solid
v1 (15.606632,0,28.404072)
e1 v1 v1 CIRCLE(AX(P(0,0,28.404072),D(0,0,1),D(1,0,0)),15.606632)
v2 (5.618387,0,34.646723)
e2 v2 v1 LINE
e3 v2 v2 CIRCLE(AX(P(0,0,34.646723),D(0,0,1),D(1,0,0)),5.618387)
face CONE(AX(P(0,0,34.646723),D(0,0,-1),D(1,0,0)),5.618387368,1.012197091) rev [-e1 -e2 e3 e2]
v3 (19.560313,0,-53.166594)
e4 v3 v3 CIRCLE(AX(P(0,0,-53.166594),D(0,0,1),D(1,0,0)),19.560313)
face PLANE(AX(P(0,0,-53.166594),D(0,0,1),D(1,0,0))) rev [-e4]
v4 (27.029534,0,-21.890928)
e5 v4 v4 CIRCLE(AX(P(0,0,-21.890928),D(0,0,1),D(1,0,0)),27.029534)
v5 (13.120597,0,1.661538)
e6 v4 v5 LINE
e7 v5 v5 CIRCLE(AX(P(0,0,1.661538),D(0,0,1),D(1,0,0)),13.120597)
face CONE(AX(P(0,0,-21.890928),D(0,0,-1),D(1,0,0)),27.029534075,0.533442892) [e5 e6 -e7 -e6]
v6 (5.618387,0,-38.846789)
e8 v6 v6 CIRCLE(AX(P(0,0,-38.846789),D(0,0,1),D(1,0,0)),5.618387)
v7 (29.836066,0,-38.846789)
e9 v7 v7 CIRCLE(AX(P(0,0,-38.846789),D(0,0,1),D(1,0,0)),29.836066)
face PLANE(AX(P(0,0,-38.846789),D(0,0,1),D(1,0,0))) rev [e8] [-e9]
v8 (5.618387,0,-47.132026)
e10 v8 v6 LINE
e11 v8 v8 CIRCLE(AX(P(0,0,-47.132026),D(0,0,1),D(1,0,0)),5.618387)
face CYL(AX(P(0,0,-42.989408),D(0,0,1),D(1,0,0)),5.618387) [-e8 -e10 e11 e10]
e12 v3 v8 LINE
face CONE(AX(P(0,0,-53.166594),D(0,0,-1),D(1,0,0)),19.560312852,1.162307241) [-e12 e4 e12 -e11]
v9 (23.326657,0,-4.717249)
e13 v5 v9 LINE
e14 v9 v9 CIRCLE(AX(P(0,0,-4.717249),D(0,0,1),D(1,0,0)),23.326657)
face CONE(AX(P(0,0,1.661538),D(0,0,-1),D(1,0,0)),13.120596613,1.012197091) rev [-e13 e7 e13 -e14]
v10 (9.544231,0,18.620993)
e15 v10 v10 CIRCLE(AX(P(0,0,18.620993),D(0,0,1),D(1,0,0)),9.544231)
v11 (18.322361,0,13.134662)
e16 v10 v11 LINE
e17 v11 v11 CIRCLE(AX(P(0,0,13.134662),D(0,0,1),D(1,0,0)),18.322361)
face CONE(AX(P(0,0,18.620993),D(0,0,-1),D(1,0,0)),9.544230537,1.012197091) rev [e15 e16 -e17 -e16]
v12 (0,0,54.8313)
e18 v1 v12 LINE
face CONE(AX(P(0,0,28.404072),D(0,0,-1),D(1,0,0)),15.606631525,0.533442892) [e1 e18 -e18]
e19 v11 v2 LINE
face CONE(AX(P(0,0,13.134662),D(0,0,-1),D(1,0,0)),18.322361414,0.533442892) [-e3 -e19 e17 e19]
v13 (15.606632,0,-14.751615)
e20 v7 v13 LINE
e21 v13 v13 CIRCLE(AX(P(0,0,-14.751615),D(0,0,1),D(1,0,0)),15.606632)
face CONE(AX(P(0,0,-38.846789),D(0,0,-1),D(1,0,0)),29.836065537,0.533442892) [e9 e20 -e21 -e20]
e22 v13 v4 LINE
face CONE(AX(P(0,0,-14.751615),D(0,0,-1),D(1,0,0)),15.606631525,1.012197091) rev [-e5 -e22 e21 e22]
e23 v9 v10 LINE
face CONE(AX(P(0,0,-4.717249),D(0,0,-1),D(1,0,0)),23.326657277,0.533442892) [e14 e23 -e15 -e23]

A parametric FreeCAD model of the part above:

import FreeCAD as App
import Part
import Sketcher

V = App.Vector
Q = App.Units.Quantity


def add_polygon(sketch, points):
    """Adds a closed chain of lines whose ends are joined by coincident constraints."""
    first, n = sketch.GeometryCount, len(points)
    for a, b in zip(points, points[1:] + points[:1]):
        sketch.addGeometry(Part.LineSegment(App.Vector(*a, 0), App.Vector(*b, 0)), False)
    for i in range(n):
        sketch.addConstraint(Sketcher.Constraint("Coincident", first + i, 2, first + (i + 1) % n, 1))

doc = App.newDocument("Part")
body = doc.addObject("PartDesign::Body", "Body")

# Sketch on XZ plane
sketch1 = body.newObject("Sketcher::SketchObject", "Sketch")
sketch1.AttachmentSupport = (doc.getObject("XZ_Plane"), [""])
sketch1.MapMode = "FlatFace"
add_polygon(sketch1, [(15.606632, 28.404072), (0, 54.8313), (0, -53.166594), (19.560313, -53.166594), (5.618387, -47.132026), (5.618387, -38.846789), (29.836066, -38.846789), (15.606632, -14.751615), (27.029534, -21.890928), (13.120597, 1.661538), (23.326657, -4.717249), (9.544231, 18.620993), (18.322361, 13.134662), (5.618387, 34.646723)])  # lines 0-13
sketch1.addConstraint(Sketcher.Constraint("Vertical", 1))
sketch1.addConstraint(Sketcher.Constraint("Horizontal", 2))
sketch1.addConstraint(Sketcher.Constraint("Vertical", 4))
sketch1.addConstraint(Sketcher.Constraint("Horizontal", 5))
sketch1.addConstraint(Sketcher.Constraint("PointOnObject", 0, 2, -2))
sketch1.addConstraint(Sketcher.Constraint("Parallel", 0, 6))
sketch1.addConstraint(Sketcher.Constraint("Parallel", 6, 8))
sketch1.addConstraint(Sketcher.Constraint("Parallel", 7, 9))
sketch1.addConstraint(Sketcher.Constraint("Parallel", 8, 10))
sketch1.addConstraint(Sketcher.Constraint("Parallel", 9, 11))
sketch1.addConstraint(Sketcher.Constraint("Parallel", 10, 12))
sketch1.addConstraint(Sketcher.Constraint("Parallel", 11, 13))
sketch1.addConstraint(Sketcher.Constraint("Vertical", 4, 2, 12, 2))
sketch1.addConstraint(Sketcher.Constraint("Vertical", 6, 2, 13, 2))
sketch1.addConstraint(Sketcher.Constraint("DistanceX", 5, 1, 5, 2, Q("24.217678 mm")))
sketch1.addConstraint(Sketcher.Constraint("DistanceY", -1, 1, 0, 2, Q("54.8313 mm")))
sketch1.addConstraint(Sketcher.Constraint("DistanceY", 3, 2, 7, 2, Q("25.241098 mm")))
sketch1.addConstraint(Sketcher.Constraint("DistanceX", 10, 2, 6, 2, Q("6.062401 mm")))
sketch1.addConstraint(Sketcher.Constraint("Distance", 7, Q("13.47043 mm")))
sketch1.addConstraint(Sketcher.Constraint("Distance", 8, Q("27.352828 mm")))
sketch1.addConstraint(Sketcher.Constraint("Distance", 11, Q("10.35159 mm")))
sketch1.addConstraint(Sketcher.Constraint("Distance", 12, Q("24.983189 mm")))
sketch1.addConstraint(Sketcher.Constraint("DistanceX", 2, 1, 2, 2, Q("19.560313 mm")))
sketch1.addConstraint(Sketcher.Constraint("DistanceY", 1, 2, 1, 1, Q("107.997894 mm")))
sketch1.addConstraint(Sketcher.Constraint("DistanceY", 4, 1, 4, 2, Q("8.285237 mm")))
sketch1.addConstraint(Sketcher.Constraint("DistanceY", 4, 2, -1, 1, Q("38.846789 mm")))
sketch1.addConstraint(Sketcher.Constraint("DistanceX", -1, 1, 6, 2, Q("15.606632 mm")))
sketch1.addConstraint(Sketcher.Constraint("DistanceY", -1, 1, 8, 2, Q("1.661538 mm")))
revolution = body.newObject("PartDesign::Revolution", "Revolution")
revolution.Profile = sketch1
revolution.ReferenceAxis = (sketch1, ["V_Axis"])
revolution.Angle = 360

doc.recompute()
